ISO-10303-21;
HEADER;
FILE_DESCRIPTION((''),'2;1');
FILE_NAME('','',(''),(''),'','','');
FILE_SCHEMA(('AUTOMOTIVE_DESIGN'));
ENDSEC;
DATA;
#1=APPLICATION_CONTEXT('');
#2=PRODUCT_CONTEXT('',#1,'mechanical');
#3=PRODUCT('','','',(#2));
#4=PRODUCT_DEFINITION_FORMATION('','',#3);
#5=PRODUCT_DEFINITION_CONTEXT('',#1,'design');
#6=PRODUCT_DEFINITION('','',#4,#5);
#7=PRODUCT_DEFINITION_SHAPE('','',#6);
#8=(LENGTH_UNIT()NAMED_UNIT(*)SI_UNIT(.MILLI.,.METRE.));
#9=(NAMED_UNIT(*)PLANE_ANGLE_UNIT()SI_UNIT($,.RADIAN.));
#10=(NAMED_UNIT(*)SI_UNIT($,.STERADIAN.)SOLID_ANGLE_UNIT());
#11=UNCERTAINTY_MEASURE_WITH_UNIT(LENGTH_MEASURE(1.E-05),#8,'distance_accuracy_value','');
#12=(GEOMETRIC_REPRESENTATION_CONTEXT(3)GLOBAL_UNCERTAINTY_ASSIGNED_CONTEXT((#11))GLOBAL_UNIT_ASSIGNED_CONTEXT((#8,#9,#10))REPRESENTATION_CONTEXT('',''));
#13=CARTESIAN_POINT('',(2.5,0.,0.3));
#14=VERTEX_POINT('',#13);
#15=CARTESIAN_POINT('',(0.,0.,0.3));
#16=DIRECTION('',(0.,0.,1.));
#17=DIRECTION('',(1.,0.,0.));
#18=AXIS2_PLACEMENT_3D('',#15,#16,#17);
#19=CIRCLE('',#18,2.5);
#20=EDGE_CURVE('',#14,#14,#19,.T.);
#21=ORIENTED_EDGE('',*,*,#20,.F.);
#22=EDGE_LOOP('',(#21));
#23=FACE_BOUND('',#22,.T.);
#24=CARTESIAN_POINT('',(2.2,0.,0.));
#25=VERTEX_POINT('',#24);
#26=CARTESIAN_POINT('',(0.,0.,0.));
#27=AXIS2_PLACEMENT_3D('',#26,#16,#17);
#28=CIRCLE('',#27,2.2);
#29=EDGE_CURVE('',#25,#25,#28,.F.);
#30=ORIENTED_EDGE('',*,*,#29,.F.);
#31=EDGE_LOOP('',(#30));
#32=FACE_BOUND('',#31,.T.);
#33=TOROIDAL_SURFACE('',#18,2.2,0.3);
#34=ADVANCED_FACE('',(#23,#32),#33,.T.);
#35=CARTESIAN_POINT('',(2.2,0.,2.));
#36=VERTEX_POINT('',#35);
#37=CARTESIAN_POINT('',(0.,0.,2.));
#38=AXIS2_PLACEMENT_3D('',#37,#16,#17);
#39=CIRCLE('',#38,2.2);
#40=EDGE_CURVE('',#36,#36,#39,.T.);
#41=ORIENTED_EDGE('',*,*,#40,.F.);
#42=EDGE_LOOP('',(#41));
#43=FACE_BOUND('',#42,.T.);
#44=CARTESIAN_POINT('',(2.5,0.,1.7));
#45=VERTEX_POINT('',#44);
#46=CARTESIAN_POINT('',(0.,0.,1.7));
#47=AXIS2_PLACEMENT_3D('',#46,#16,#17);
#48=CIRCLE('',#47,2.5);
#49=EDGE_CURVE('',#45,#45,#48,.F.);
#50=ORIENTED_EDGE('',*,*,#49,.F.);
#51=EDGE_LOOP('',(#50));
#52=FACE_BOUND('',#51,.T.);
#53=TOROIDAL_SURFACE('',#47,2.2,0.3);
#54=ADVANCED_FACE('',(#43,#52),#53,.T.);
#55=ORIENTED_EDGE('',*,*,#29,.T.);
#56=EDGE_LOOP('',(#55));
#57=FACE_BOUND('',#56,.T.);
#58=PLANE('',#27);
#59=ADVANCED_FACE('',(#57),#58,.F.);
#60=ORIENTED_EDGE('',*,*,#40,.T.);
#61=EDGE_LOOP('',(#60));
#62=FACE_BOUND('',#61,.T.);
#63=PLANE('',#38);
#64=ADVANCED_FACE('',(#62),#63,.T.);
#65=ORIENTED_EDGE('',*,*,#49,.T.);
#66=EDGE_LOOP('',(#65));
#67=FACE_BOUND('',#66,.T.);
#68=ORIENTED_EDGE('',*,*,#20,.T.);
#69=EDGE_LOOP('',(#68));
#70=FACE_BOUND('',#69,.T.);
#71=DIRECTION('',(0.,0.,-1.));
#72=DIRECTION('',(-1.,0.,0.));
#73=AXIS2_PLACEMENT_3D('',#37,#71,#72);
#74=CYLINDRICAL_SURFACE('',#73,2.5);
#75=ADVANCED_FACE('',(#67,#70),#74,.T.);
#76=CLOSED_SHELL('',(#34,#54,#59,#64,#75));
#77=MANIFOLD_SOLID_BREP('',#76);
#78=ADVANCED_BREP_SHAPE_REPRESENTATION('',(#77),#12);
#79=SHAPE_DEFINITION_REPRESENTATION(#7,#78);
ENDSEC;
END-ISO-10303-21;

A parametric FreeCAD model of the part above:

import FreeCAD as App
import Part
import Sketcher
from FreeCAD import Vector
Q = App.Units.Quantity


def edges_at(feature, points):
    """Names of the edges that pass closest to the given points."""
    edges = feature.Shape.Edges
    near = lambda p: min(range(len(edges)), key=lambda i: edges[i].distToShape(Part.Vertex(*p))[0])
    return sorted({f"Edge{near(p) + 1}" for p in points})

doc = App.newDocument("Part")
body = doc.addObject("PartDesign::Body", "Body")

# Sketch on XY plane
sketch1 = body.newObject("Sketcher::SketchObject", "Sketch")
sketch1.AttachmentSupport = (doc.getObject("XY_Plane"), [""])
sketch1.MapMode = "FlatFace"
sketch1.addGeometry(Part.Circle(Vector(0, 0, 0), Vector(0, 0, 1), 2.5), False)
sketch1.addConstraint([
    Sketcher.Constraint("Coincident", 0, 3, -1, 1),
    Sketcher.Constraint("Diameter", 0, Q("5 mm")),
])
pad1 = body.newObject("PartDesign::Pad", "Pad")
pad1.Profile = sketch1
pad1.Length = 2
doc.recompute()

fillet = body.newObject("PartDesign::Fillet", "Fillet")
fillet.Base = (pad1, edges_at(pad1, [(-2.5, 0, 0), (-2.5, 0, 2)]))
fillet.Radius = 0.3

doc.recompute()
